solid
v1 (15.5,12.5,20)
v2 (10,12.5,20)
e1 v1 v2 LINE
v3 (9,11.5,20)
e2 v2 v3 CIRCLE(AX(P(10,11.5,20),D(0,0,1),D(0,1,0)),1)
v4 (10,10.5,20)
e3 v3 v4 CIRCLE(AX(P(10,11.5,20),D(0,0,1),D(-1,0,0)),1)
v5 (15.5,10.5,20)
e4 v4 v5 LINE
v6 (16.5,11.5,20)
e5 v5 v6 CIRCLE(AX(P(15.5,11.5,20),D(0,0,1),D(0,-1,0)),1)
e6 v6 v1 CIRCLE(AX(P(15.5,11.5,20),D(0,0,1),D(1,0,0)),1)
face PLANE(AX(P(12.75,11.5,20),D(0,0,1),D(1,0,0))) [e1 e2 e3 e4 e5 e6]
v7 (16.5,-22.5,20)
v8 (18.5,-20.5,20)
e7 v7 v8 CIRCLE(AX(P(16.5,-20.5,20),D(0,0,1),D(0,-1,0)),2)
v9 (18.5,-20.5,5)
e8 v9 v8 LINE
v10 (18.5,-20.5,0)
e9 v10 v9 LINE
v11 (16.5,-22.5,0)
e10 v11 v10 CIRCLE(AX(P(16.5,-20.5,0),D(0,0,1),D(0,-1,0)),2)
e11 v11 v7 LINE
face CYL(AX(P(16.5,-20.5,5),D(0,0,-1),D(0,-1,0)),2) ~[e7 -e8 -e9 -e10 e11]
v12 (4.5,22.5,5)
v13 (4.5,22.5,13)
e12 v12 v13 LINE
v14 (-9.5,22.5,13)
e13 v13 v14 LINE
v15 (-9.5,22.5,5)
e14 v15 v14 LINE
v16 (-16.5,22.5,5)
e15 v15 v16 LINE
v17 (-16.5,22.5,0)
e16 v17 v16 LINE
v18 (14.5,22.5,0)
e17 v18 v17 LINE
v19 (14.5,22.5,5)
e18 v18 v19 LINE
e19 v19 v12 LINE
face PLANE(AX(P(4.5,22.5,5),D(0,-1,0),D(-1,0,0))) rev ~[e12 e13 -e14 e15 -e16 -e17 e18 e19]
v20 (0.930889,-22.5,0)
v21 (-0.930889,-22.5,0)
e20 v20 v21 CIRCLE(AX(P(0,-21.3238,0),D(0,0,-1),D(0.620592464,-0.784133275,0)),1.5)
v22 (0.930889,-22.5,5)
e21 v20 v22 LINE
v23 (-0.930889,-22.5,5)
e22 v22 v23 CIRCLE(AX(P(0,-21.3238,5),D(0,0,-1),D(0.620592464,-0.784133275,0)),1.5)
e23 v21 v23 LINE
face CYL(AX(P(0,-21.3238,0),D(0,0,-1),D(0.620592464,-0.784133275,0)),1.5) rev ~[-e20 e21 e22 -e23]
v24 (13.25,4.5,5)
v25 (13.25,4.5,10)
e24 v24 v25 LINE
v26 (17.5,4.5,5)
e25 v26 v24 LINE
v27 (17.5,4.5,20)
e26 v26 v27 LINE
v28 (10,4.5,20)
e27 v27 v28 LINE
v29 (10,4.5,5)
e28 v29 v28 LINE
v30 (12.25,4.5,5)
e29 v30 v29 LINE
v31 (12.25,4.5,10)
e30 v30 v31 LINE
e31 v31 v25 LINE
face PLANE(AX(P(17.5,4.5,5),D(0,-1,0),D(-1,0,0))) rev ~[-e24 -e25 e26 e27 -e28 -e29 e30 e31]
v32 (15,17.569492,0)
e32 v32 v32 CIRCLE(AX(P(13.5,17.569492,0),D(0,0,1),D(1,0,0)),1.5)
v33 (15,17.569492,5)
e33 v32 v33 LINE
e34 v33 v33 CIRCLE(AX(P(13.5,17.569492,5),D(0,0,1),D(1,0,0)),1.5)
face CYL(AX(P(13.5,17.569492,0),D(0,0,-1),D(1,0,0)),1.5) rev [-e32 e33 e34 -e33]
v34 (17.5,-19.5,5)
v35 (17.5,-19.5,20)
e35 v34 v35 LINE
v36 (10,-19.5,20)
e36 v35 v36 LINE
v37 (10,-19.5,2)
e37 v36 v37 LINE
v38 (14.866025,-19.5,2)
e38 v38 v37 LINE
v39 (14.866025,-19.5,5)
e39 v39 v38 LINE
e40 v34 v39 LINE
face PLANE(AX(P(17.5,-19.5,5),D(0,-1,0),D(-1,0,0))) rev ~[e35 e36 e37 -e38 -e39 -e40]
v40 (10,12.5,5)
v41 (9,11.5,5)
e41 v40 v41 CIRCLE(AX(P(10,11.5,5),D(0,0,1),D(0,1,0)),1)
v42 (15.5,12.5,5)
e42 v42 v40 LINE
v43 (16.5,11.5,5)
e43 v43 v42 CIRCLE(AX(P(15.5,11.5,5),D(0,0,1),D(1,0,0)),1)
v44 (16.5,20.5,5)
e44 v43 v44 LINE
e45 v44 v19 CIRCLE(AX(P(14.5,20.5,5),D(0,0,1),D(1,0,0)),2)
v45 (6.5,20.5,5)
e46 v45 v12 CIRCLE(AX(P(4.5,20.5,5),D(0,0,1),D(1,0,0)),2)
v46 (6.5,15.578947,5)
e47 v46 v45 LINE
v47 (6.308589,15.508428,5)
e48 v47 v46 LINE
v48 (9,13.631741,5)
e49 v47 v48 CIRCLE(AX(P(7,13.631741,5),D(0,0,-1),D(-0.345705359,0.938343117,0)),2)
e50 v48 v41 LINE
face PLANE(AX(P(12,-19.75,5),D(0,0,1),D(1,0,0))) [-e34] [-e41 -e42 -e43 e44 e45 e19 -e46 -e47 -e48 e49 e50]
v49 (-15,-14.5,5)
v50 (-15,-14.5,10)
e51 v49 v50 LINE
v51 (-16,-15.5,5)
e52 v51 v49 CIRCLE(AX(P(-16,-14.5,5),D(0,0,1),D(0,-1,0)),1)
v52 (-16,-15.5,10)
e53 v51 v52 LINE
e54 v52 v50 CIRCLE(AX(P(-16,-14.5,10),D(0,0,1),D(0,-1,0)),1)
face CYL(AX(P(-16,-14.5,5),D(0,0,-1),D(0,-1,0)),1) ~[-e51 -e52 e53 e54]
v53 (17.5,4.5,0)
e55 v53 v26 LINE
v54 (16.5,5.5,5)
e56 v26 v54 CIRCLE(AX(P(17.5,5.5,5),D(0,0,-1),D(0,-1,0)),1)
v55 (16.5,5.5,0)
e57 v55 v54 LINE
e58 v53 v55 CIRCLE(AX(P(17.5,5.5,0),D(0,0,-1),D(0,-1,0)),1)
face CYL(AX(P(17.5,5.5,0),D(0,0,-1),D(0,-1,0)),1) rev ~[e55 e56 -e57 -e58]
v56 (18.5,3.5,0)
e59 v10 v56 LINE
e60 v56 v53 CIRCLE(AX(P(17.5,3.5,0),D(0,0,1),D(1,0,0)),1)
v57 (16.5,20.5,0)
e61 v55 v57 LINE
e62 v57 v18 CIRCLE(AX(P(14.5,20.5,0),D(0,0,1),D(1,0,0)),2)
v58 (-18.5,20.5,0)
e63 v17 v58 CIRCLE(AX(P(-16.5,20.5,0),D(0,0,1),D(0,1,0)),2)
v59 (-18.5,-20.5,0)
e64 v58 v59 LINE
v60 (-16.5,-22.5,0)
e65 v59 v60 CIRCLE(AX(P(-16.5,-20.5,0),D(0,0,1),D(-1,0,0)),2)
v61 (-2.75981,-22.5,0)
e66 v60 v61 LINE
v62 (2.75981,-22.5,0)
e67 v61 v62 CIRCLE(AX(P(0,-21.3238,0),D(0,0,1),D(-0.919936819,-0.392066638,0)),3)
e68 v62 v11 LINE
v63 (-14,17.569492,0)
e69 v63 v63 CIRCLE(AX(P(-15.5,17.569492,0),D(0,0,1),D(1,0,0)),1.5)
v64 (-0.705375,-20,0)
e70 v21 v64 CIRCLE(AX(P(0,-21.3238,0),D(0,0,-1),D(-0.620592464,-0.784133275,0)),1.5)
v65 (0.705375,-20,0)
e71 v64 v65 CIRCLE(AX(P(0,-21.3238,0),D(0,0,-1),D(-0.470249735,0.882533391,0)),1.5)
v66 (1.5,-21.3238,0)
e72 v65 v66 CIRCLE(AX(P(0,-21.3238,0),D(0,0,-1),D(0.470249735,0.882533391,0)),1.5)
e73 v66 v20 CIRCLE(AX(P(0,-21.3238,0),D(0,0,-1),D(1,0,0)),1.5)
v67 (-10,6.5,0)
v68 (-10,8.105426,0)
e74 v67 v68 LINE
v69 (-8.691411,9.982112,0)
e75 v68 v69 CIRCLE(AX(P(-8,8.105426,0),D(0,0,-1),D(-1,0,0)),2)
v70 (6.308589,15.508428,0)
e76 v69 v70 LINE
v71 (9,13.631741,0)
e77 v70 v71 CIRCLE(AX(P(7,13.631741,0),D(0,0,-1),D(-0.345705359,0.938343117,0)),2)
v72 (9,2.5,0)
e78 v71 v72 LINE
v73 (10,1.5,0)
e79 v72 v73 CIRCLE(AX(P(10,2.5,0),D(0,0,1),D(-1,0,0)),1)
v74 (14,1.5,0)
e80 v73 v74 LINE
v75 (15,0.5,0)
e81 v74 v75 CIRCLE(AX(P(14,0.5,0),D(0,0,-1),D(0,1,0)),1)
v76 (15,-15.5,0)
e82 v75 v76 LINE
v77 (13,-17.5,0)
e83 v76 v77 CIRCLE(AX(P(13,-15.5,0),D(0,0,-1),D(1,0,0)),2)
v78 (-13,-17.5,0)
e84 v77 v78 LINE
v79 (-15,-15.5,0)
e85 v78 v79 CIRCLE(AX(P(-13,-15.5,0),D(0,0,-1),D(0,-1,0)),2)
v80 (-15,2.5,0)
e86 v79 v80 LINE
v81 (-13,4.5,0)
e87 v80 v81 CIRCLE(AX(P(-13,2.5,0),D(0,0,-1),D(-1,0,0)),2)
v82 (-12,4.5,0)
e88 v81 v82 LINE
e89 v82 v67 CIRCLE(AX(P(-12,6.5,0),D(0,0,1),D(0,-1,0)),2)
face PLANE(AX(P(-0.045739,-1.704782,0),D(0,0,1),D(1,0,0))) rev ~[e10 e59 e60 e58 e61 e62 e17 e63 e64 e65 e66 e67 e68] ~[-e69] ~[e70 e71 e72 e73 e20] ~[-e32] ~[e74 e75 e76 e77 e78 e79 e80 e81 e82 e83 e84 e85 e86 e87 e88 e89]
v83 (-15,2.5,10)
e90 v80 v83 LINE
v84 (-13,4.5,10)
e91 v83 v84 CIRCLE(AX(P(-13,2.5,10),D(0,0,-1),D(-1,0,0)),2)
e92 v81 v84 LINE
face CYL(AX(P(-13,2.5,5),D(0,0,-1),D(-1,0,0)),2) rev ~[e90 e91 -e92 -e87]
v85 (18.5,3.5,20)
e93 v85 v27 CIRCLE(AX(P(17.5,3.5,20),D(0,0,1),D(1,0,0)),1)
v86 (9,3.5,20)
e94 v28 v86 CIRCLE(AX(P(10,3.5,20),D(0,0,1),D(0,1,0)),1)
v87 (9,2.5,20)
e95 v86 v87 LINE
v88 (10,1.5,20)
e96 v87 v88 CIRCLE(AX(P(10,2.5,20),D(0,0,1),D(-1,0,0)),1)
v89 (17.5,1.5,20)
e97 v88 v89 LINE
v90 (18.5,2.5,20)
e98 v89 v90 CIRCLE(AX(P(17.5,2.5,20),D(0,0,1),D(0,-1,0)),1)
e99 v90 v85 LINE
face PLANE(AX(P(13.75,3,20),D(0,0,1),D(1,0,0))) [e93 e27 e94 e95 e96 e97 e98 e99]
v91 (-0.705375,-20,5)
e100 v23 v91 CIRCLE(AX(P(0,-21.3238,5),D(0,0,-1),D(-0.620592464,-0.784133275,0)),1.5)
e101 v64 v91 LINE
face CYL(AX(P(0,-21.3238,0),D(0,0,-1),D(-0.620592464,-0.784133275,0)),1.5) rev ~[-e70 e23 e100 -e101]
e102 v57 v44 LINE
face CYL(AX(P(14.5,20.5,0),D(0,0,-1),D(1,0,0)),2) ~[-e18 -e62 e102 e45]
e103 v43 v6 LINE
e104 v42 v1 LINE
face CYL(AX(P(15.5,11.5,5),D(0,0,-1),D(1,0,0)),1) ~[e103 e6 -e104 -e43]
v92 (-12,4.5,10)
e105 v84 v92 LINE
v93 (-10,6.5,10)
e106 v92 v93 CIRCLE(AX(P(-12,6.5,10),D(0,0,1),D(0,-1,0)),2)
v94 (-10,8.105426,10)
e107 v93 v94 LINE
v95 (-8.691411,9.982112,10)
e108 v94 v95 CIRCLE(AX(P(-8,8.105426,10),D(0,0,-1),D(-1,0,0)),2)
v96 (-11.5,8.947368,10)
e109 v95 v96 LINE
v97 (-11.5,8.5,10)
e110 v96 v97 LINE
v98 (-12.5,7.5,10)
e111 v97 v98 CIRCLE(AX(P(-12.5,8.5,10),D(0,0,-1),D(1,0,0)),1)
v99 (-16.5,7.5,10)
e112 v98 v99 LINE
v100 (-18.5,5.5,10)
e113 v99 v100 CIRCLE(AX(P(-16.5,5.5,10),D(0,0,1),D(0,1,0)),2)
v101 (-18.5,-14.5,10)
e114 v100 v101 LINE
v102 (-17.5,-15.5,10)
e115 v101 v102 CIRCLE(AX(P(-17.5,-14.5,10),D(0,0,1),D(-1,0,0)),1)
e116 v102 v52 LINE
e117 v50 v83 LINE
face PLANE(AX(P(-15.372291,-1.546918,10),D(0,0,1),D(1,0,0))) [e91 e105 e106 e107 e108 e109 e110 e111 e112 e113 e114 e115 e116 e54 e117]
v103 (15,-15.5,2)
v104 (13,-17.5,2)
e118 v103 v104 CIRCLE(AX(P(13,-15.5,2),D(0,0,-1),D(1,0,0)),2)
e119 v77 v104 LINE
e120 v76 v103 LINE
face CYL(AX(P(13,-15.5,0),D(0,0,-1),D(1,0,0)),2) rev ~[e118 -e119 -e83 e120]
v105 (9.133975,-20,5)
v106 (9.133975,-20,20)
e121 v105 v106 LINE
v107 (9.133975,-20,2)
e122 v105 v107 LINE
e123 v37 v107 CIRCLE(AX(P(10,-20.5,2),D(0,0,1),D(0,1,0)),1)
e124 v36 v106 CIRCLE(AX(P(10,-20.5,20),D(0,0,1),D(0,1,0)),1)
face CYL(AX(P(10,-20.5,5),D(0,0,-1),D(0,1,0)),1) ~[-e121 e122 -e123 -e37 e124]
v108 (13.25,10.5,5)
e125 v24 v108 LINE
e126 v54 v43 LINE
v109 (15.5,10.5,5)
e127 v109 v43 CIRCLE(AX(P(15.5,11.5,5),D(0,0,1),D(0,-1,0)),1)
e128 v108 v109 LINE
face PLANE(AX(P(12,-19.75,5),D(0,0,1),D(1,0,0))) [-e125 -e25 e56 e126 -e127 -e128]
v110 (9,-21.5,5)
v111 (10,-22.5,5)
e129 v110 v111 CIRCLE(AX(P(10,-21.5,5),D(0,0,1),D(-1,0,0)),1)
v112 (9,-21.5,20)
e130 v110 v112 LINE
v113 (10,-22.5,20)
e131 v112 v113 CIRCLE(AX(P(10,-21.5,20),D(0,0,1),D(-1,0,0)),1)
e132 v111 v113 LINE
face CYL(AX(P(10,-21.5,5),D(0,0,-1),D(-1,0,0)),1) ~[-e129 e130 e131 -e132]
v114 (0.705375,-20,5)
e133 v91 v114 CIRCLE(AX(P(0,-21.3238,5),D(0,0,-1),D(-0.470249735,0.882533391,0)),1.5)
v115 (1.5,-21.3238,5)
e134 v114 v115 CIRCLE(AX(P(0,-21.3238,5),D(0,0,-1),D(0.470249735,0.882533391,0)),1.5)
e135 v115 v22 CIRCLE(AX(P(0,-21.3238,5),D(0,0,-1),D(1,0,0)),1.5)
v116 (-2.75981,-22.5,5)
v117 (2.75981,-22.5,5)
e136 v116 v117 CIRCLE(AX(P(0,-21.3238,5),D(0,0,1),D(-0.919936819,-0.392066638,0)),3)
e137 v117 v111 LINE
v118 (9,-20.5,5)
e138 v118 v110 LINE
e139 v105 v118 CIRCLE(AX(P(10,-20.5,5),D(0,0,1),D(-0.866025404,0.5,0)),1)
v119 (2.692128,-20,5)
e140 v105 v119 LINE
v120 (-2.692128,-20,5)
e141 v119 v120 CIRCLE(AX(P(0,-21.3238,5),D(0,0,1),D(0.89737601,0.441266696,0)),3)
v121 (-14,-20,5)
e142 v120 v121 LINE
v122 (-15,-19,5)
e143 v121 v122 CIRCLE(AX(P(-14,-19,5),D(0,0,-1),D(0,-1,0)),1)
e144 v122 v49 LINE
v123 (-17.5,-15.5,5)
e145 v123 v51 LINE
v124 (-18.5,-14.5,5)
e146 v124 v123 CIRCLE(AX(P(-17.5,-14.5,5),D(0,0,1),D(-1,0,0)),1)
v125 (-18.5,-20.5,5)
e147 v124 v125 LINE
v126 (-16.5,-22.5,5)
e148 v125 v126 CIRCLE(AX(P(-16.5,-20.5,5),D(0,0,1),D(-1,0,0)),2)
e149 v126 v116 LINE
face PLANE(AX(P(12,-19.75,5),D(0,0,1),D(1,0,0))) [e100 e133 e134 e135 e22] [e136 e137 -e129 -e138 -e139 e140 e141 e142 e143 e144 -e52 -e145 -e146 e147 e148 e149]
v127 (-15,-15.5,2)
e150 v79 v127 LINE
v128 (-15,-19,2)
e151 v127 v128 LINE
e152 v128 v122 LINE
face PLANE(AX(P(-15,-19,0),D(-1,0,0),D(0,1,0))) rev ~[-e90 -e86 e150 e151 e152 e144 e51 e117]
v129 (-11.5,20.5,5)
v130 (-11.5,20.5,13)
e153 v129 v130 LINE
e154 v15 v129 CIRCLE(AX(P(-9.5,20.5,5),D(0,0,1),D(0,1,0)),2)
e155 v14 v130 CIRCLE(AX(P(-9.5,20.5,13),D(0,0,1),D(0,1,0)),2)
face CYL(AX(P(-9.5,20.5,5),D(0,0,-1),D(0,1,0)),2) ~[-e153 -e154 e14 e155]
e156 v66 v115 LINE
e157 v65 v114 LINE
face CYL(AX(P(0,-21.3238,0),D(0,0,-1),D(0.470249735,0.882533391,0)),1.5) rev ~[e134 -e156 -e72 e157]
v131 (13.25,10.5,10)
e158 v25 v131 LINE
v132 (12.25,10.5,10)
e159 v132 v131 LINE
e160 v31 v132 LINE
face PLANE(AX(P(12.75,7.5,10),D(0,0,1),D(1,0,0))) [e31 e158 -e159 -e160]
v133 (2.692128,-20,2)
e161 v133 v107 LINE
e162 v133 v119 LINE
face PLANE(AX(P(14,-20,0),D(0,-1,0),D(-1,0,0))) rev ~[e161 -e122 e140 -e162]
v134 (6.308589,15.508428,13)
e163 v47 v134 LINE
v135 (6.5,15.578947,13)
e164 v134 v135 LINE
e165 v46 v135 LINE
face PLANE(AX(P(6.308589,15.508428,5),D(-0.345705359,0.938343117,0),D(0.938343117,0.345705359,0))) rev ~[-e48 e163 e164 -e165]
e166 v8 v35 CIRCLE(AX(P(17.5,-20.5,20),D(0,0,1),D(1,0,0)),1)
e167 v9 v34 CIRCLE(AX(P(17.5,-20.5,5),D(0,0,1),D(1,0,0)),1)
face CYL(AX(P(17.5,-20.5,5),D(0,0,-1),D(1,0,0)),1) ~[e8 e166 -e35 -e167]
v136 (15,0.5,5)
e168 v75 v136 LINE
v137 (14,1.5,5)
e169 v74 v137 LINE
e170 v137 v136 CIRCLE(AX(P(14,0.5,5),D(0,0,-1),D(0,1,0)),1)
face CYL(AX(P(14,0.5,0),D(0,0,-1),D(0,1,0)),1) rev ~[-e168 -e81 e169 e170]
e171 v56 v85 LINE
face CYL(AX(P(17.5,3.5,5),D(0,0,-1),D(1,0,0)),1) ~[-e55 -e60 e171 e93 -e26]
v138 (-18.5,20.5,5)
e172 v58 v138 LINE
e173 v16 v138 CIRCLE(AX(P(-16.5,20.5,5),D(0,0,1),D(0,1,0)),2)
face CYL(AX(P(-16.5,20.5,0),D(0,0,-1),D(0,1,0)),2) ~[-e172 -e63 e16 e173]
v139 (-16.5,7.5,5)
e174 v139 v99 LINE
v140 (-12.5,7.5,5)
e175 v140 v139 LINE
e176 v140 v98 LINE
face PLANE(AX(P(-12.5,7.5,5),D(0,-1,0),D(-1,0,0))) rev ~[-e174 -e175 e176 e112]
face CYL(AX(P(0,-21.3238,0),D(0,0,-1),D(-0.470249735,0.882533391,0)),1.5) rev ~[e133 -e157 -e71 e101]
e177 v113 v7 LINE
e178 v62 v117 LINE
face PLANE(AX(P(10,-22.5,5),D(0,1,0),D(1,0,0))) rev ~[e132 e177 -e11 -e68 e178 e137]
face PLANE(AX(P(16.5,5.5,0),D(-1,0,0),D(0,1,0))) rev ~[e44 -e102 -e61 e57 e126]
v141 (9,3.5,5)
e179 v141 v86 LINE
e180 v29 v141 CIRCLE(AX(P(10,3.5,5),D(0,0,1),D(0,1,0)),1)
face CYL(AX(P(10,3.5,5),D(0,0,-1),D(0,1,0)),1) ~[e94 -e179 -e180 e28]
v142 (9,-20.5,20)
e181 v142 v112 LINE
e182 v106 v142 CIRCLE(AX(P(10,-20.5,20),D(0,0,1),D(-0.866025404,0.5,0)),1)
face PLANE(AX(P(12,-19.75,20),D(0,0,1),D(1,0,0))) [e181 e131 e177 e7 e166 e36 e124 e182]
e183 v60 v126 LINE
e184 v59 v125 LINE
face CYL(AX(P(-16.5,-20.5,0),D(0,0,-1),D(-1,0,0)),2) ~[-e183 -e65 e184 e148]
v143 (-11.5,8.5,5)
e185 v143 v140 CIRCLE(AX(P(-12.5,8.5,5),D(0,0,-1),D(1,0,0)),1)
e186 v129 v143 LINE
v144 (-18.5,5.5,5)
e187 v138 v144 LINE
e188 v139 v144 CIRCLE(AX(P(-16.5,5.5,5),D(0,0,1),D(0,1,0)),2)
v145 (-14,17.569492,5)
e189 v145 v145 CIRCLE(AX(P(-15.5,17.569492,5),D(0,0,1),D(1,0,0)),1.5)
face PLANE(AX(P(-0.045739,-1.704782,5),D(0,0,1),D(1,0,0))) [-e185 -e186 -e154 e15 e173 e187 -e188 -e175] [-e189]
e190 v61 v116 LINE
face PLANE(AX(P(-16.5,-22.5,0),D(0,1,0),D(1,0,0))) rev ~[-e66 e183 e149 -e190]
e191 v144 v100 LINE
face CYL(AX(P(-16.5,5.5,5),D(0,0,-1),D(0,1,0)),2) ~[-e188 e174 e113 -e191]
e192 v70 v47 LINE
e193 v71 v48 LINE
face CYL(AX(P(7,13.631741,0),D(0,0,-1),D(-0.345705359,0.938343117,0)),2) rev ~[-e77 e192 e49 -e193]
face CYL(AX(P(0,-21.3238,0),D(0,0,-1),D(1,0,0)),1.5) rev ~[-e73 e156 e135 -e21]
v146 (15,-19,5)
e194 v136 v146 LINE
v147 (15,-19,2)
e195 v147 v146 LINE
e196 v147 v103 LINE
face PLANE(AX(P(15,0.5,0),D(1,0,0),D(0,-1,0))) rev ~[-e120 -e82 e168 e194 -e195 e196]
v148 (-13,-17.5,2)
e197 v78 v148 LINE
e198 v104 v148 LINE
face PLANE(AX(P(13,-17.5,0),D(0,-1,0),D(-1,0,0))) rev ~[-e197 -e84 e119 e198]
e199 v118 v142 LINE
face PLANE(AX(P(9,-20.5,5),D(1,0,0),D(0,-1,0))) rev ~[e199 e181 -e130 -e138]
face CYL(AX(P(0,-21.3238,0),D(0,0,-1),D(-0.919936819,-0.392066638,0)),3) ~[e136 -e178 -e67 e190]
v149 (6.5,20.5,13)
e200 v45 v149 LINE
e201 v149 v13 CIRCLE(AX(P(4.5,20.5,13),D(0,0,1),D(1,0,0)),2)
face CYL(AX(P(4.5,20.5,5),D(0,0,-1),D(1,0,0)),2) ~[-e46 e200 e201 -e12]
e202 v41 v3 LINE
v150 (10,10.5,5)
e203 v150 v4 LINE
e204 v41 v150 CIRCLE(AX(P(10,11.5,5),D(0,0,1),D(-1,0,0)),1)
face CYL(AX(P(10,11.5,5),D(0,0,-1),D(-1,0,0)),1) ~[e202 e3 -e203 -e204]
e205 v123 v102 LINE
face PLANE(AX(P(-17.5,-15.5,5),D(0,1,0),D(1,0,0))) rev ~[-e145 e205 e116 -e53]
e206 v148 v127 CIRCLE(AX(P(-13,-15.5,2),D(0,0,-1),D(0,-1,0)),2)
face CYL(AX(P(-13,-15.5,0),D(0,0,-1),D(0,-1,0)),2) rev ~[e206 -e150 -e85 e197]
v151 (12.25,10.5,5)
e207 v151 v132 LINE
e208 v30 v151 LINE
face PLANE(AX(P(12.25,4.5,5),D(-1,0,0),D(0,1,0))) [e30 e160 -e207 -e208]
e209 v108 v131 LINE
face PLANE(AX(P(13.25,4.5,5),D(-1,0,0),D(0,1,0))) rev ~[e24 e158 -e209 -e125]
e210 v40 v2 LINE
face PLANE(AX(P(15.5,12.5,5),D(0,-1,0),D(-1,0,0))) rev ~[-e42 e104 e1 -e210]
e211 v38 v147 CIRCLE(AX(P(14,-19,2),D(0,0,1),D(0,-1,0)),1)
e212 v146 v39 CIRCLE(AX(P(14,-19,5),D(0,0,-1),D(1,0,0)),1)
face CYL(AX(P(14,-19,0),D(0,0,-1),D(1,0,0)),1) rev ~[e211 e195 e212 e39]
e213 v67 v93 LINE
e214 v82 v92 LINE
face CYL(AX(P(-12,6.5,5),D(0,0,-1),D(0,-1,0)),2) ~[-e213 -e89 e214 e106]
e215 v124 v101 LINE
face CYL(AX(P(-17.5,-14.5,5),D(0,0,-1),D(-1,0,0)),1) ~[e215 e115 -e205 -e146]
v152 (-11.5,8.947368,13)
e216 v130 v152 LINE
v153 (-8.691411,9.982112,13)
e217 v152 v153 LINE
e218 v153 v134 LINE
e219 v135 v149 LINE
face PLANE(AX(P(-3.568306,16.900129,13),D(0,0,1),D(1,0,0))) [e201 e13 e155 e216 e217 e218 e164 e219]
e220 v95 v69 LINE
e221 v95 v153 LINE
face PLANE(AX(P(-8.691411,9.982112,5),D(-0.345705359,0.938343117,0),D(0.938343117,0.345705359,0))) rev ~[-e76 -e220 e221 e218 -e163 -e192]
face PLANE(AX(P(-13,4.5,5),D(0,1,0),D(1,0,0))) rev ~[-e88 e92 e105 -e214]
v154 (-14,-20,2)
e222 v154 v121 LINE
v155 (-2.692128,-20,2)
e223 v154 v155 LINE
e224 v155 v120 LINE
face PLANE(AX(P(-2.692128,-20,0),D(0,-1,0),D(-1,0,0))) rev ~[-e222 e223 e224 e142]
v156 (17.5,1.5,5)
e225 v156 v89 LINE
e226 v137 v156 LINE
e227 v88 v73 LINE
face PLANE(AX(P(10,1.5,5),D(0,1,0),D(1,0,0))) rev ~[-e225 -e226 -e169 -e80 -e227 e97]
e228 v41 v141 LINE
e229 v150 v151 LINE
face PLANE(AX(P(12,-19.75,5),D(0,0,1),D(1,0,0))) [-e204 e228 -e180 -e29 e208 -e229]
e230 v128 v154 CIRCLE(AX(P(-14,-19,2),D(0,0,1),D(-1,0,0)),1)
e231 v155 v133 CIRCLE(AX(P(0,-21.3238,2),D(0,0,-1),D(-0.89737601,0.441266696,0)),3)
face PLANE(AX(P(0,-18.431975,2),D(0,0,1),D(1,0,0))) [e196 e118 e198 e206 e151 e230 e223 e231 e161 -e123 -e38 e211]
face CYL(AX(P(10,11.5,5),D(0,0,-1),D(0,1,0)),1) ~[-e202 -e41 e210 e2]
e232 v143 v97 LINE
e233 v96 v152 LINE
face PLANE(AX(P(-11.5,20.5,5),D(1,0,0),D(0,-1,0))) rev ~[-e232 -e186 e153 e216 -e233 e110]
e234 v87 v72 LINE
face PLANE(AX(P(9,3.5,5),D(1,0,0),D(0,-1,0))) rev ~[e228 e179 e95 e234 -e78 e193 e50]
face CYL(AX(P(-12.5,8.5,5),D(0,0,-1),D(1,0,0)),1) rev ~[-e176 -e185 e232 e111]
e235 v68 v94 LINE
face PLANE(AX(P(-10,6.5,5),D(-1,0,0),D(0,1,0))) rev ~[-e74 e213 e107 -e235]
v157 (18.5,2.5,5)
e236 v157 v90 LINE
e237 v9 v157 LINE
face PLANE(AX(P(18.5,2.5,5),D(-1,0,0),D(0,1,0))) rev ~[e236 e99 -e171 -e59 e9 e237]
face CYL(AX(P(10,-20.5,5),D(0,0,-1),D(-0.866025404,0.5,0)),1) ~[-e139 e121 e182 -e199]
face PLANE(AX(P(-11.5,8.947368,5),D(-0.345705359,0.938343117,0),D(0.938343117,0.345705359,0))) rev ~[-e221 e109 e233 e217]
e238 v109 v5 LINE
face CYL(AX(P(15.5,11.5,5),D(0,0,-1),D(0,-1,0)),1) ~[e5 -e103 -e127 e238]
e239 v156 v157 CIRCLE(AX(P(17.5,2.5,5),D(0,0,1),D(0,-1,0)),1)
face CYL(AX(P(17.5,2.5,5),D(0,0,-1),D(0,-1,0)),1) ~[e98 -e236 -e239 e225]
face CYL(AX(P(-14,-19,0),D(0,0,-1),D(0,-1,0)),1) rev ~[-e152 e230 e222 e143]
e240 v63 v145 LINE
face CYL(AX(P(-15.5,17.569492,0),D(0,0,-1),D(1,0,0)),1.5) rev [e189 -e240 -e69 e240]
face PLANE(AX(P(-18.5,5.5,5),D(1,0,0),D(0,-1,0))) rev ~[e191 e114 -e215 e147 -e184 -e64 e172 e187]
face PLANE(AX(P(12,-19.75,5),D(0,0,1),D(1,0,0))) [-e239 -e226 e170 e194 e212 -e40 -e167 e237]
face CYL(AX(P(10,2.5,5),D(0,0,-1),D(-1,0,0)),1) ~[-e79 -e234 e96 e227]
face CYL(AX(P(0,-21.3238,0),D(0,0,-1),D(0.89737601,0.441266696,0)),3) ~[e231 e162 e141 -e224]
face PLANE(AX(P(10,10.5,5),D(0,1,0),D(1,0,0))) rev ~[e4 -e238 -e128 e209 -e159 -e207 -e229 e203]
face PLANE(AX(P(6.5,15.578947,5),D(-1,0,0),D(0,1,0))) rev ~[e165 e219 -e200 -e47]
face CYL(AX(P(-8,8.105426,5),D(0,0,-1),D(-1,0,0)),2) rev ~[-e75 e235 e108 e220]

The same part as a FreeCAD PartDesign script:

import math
import FreeCAD as App
import Part
import Sketcher

doc = App.newDocument("Part")
body = doc.addObject("PartDesign::Body", "Body")

# Sketch on XY plane
sketch1 = doc.addObject("Sketcher::SketchObject", "Sketch")
body.addObject(sketch1)
sketch1.AttachmentSupport = (doc.XY_Plane, [""])
sketch1.MapMode = "FlatFace"
sketch1.addGeometry([
    Part.LineSegment(App.Vector(-14, -20, 0), App.Vector(-2.7, -20, 0)),  # 0
    Part.ArcOfCircle(Part.Circle(App.Vector(0, -21.3, 0), App.Vector(0, 0, 1), 3), math.radians(26), math.radians(154)),  # 1
    Part.LineSegment(App.Vector(2.7, -20, 0), App.Vector(14, -20, 0)),  # 2
    Part.ArcOfCircle(Part.Circle(App.Vector(14, -19, 0), App.Vector(0, 0, 1), 1), math.radians(-90), math.radians(0)),  # 3
    Part.LineSegment(App.Vector(15, -19, 0), App.Vector(15, -15.5, 0)),  # 4
    Part.ArcOfCircle(Part.Circle(App.Vector(13, -15.5, 0), App.Vector(0, 0, 1), 2), math.radians(-90), math.radians(0)),  # 5
    Part.LineSegment(App.Vector(13, -17.5, 0), App.Vector(-13, -17.5, 0)),  # 6
    Part.ArcOfCircle(Part.Circle(App.Vector(-13, -15.5, 0), App.Vector(0, 0, 1), 2), math.radians(180), math.radians(270)),  # 7
    Part.LineSegment(App.Vector(-15, -15.5, 0), App.Vector(-15, -19, 0)),  # 8
    Part.ArcOfCircle(Part.Circle(App.Vector(-14, -19, 0), App.Vector(0, 0, 1), 1), math.radians(180), math.radians(270)),  # 9
], False)
sketch1.addConstraint([
    Sketcher.Constraint("Coincident", 0, 2, 1, 2),
    Sketcher.Constraint("Coincident", 1, 1, 2, 1),
    Sketcher.Constraint("Tangent", 2, 2, 3, 1),
    Sketcher.Constraint("Tangent", 3, 2, 4, 1),
    Sketcher.Constraint("Tangent", 4, 2, 5, 2),
    Sketcher.Constraint("Tangent", 5, 1, 6, 1),
    Sketcher.Constraint("Tangent", 6, 2, 7, 2),
    Sketcher.Constraint("Tangent", 7, 1, 8, 1),
    Sketcher.Constraint("Tangent", 8, 2, 9, 1),
    Sketcher.Constraint("Tangent", 9, 2, 0, 1),
    Sketcher.Constraint("Horizontal", 0),
    Sketcher.Constraint("Horizontal", 2),
    Sketcher.Constraint("Vertical", 4),
    Sketcher.Constraint("Horizontal", 6),
    Sketcher.Constraint("Vertical", 8),
    Sketcher.Constraint("Equal", 5, 7),
    Sketcher.Constraint("Equal", 3, 9),
    Sketcher.Constraint("Symmetric", 3, 3, 9, 3, -2),
    Sketcher.Constraint("PointOnObject", 1, 3, -2),
    Sketcher.Constraint("Radius", 1, 3.0),
    Sketcher.Constraint("Radius", 3, 1.0),
    Sketcher.Constraint("Radius", 5, 2.0),
    Sketcher.Constraint("DistanceX", 6, 2, 6, 1, 26.0),
    Sketcher.Constraint("DistanceY", 4, 1, 4, 2, 3.5),
    Sketcher.Constraint("DistanceY", 3, 3, -1, 1, 19.0),
    Sketcher.Constraint("DistanceX", 0, 1, 0, 2, 11.307872),
])
pad1 = doc.addObject("PartDesign::Pad", "Pad")
body.addObject(pad1)
pad1.Profile = sketch1
pad1.Length = 2

# Sketch on XY plane
sketch2 = doc.addObject("Sketcher::SketchObject", "Sketch001")
body.addObject(sketch2)
sketch2.AttachmentSupport = (doc.XY_Plane, [""])
sketch2.MapMode = "FlatFace"
sketch2.addGeometry([
    Part.ArcOfCircle(Part.Circle(App.Vector(17.5, 5.5, 0), App.Vector(0, 0, 1), 1), math.radians(180), math.radians(270)),  # 0
    Part.LineSegment(App.Vector(16.5, 5.5, 0), App.Vector(16.5, 20.5, 0)),  # 1
    Part.ArcOfCircle(Part.Circle(App.Vector(14.5, 20.5, 0), App.Vector(0, 0, 1), 2), math.radians(0), math.radians(90)),  # 2
    Part.LineSegment(App.Vector(14.5, 22.5, 0), App.Vector(-16.5, 22.5, 0)),  # 3
    Part.ArcOfCircle(Part.Circle(App.Vector(-16.5, 20.5, 0), App.Vector(0, 0, 1), 2), math.radians(90), math.radians(180)),  # 4
    Part.LineSegment(App.Vector(-18.5, 20.5, 0), App.Vector(-18.5, -20.5, 0)),  # 5
    Part.ArcOfCircle(Part.Circle(App.Vector(-16.5, -20.5, 0), App.Vector(0, 0, 1), 2), math.radians(180), math.radians(270)),  # 6
    Part.LineSegment(App.Vector(-16.5, -22.5, 0), App.Vector(-2.8, -22.5, 0)),  # 7
    Part.ArcOfCircle(Part.Circle(App.Vector(0, -21.3, 0), App.Vector(0, 0, 1), 3), math.radians(-157), math.radians(-23)),  # 8
    Part.LineSegment(App.Vector(2.8, -22.5, 0), App.Vector(16.5, -22.5, 0)),  # 9
    Part.ArcOfCircle(Part.Circle(App.Vector(16.5, -20.5, 0), App.Vector(0, 0, 1), 2), math.radians(-90), math.radians(0)),  # 10
    Part.LineSegment(App.Vector(18.5, -20.5, 0), App.Vector(18.5, 3.5, 0)),  # 11
    Part.ArcOfCircle(Part.Circle(App.Vector(17.5, 3.5, 0), App.Vector(0, 0, 1), 1), math.radians(0), math.radians(90)),  # 12
    Part.ArcOfCircle(Part.Circle(App.Vector(0, -21.3, 0), App.Vector(0, 0, 1), 1.5), math.radians(-52), math.radians(0)),  # 13
    Part.ArcOfCircle(Part.Circle(App.Vector(0, -21.3, 0), App.Vector(0, 0, 1), 1.5), math.radians(-128), math.radians(-52)),  # 14
    Part.ArcOfCircle(Part.Circle(App.Vector(0, -21.3, 0), App.Vector(0, 0, 1), 1.5), math.radians(118), math.radians(232)),  # 15
    Part.ArcOfCircle(Part.Circle(App.Vector(0, -21.3, 0), App.Vector(0, 0, 1), 1.5), math.radians(62), math.radians(118)),  # 16
    Part.ArcOfCircle(Part.Circle(App.Vector(0, -21.3, 0), App.Vector(0, 0, 1), 1.5), math.radians(0), math.radians(62)),  # 17
    Part.LineSegment(App.Vector(14, -20, 0), App.Vector(2.7, -20, 0)),  # 18
    Part.ArcOfCircle(Part.Circle(App.Vector(0, -21.3, 0), App.Vector(0, 0, 1), 3), math.radians(26), math.radians(154)),  # 19
    Part.LineSegment(App.Vector(-2.7, -20, 0), App.Vector(-14, -20, 0)),  # 20
    Part.ArcOfCircle(Part.Circle(App.Vector(-14, -19, 0), App.Vector(0, 0, 1), 1), math.radians(180), math.radians(270)),  # 21
    Part.LineSegment(App.Vector(-15, -19, 0), App.Vector(-15, 2.5, 0)),  # 22
    Part.ArcOfCircle(Part.Circle(App.Vector(-13, 2.5, 0), App.Vector(0, 0, 1), 2), math.radians(90), math.radians(180)),  # 23
    Part.LineSegment(App.Vector(-13, 4.5, 0), App.Vector(-12, 4.5, 0)),  # 24
    Part.ArcOfCircle(Part.Circle(App.Vector(-12, 6.5, 0), App.Vector(0, 0, 1), 2), math.radians(-90), math.radians(0)),  # 25
    Part.LineSegment(App.Vector(-10, 6.5, 0), App.Vector(-10, 8.1, 0)),  # 26
    Part.ArcOfCircle(Part.Circle(App.Vector(-8, 8.1, 0), App.Vector(0, 0, 1), 2), math.radians(110), math.radians(180)),  # 27
    Part.LineSegment(App.Vector(-8.7, 10, 0), App.Vector(6.3, 15.5, 0)),  # 28
    Part.ArcOfCircle(Part.Circle(App.Vector(7, 13.6, 0), App.Vector(0, 0, 1), 2), math.radians(0), math.radians(110)),  # 29
    Part.LineSegment(App.Vector(9, 13.6, 0), App.Vector(9, 2.5, 0)),  # 30
    Part.ArcOfCircle(Part.Circle(App.Vector(10, 2.5, 0), App.Vector(0, 0, 1), 1), math.radians(180), math.radians(270)),  # 31
    Part.LineSegment(App.Vector(10, 1.5, 0), App.Vector(14, 1.5, 0)),  # 32
    Part.ArcOfCircle(Part.Circle(App.Vector(14, 0.5, 0), App.Vector(0, 0, 1), 1), math.radians(0), math.radians(90)),  # 33
    Part.LineSegment(App.Vector(15, 0.5, 0), App.Vector(15, -19, 0)),  # 34
    Part.ArcOfCircle(Part.Circle(App.Vector(14, -19, 0), App.Vector(0, 0, 1), 1), math.radians(-90), math.radians(0)),  # 35
    Part.Circle(App.Vector(-15.5, 17.6, 0), App.Vector(0, 0, 1), 1.5),  # 36
    Part.Circle(App.Vector(13.5, 17.6, 0), App.Vector(0, 0, 1), 1.5),  # 37
], False)
sketch2.addConstraint([
    Sketcher.Constraint("Tangent", 0, 1, 1, 1),
    Sketcher.Constraint("Tangent", 1, 2, 2, 1),
    Sketcher.Constraint("Tangent", 2, 2, 3, 1),
    Sketcher.Constraint("Tangent", 3, 2, 4, 1),
    Sketcher.Constraint("Tangent", 4, 2, 5, 1),
    Sketcher.Constraint("Tangent", 5, 2, 6, 1),
    Sketcher.Constraint("Tangent", 6, 2, 7, 1),
    Sketcher.Constraint("Coincident", 7, 2, 8, 1),
    Sketcher.Constraint("Coincident", 8, 2, 9, 1),
    Sketcher.Constraint("Tangent", 9, 2, 10, 1),
    Sketcher.Constraint("Tangent", 10, 2, 11, 1),
    Sketcher.Constraint("Tangent", 11, 2, 12, 1),
    Sketcher.Constraint("Tangent", 12, 2, 0, 2),
    Sketcher.Constraint("Tangent", 13, 1, 14, 2),
    Sketcher.Constraint("Tangent", 14, 1, 15, 2),
    Sketcher.Constraint("Tangent", 15, 1, 16, 2),
    Sketcher.Constraint("Tangent", 16, 1, 17, 2),
    Sketcher.Constraint("Tangent", 17, 1, 13, 2),
    Sketcher.Constraint("Coincident", 18, 2, 19, 1),
    Sketcher.Constraint("Coincident", 19, 2, 20, 1),
    Sketcher.Constraint("Tangent", 20, 2, 21, 2),
    Sketcher.Constraint("Tangent", 21, 1, 22, 1),
    Sketcher.Constraint("Tangent", 22, 2, 23, 2),
    Sketcher.Constraint("Tangent", 23, 1, 24, 1),
    Sketcher.Constraint("Tangent", 24, 2, 25, 1),
    Sketcher.Constraint("Tangent", 25, 2, 26, 1),
    Sketcher.Constraint("Tangent", 26, 2, 27, 2),
    Sketcher.Constraint("Tangent", 27, 1, 28, 1),
    Sketcher.Constraint("Tangent", 28, 2, 29, 2),
    Sketcher.Constraint("Tangent", 29, 1, 30, 1),
    Sketcher.Constraint("Tangent", 30, 2, 31, 1),
    Sketcher.Constraint("Tangent", 31, 2, 32, 1),
    Sketcher.Constraint("Tangent", 32, 2, 33, 2),
    Sketcher.Constraint("Tangent", 33, 1, 34, 1),
    Sketcher.Constraint("Tangent", 34, 2, 35, 2),
    Sketcher.Constraint("Tangent", 35, 1, 18, 1),
    Sketcher.Constraint("Vertical", 1),
    Sketcher.Constraint("Horizontal", 3),
    Sketcher.Constraint("Vertical", 5),
    Sketcher.Constraint("Horizontal", 7),
    Sketcher.Constraint("Horizontal", 9),
    Sketcher.Constraint("Vertical", 11),
    Sketcher.Constraint("Horizontal", 18),
    Sketcher.Constraint("Horizontal", 20),
    Sketcher.Constraint("Vertical", 22),
    Sketcher.Constraint("Horizontal", 24),
    Sketcher.Constraint("Vertical", 26),
    Sketcher.Constraint("Vertical", 30),
    Sketcher.Constraint("Horizontal", 32),
    Sketcher.Constraint("Vertical", 34),
    Sketcher.Constraint("Coincident", 13, 3, 8, 3),
    Sketcher.Constraint("Coincident", 15, 3, 8, 3),
    Sketcher.Constraint("Coincident", 19, 3, 8, 3),
    Sketcher.Constraint("Equal", 2, 4),
    Sketcher.Constraint("Equal", 4, 6),
    Sketcher.Constraint("Equal", 6, 10),
    Sketcher.Constraint("Equal", 0, 12),
    Sketcher.Constraint("Equal", 8, 19),
    Sketcher.Constraint("Equal", 12, 21),
    Sketcher.Constraint("Equal", 10, 23),
    Sketcher.Constraint("Equal", 23, 25),
    Sketcher.Constraint("Equal", 25, 27),
    Sketcher.Constraint("Equal", 27, 29),
    Sketcher.Constraint("Equal", 21, 31),
    Sketcher.Constraint("Equal", 31, 33),
    Sketcher.Constraint("Equal", 33, 35),
    Sketcher.Constraint("Equal", 17, 36),
    Sketcher.Constraint("Equal", 36, 37),
    Sketcher.Constraint("Symmetric", 4, 3, 10, 3, -1, 1),
    Sketcher.Constraint("Symmetric", 21, 3, 35, 3, -2),
    Sketcher.Constraint("Symmetric", 7, 2, 8, 2, -2),
    Sketcher.Constraint("Horizontal", 23, 3, 31, 3),
    Sketcher.Constraint("Horizontal", 36, 3, 37, 3),
    Sketcher.Constraint("Horizontal", 9, 2, 13, 1),
    Sketcher.Constraint("Horizontal", 13, 1, 14, 1),
    Sketcher.Constraint("Horizontal", 15, 1, 16, 1),
    Sketcher.Constraint("Horizontal", 19, 3, 17, 1),
    Sketcher.Constraint("Horizontal", 16, 1, 18, 2),
    Sketcher.Constraint("Horizontal", 12, 2, 23, 1),
    Sketcher.Constraint("Vertical", 0, 3, 12, 3),
    Sketcher.Constraint("Vertical", 10, 3, 0, 1),
    Sketcher.Constraint("Diameter", 36, 3.0),
    Sketcher.Constraint("Radius", 0, 1.0),
    Sketcher.Constraint("Radius", 8, 3.0),
    Sketcher.Constraint("DistanceX", 3, 2, 3, 1, 31.0),
    Sketcher.Constraint("DistanceX", 24, 1, 24, 2, 1.0),
    Sketcher.Constraint("DistanceX", 32, 1, 32, 2, 4.0),
    Sketcher.Constraint("DistanceY", 1, 1, 1, 2, 15.0),
    Sketcher.Constraint("DistanceY", 5, 2, 5, 1, 41.0),
    Sketcher.Constraint("DistanceY", 22, 1, 22, 2, 21.5),
    Sketcher.Constraint("DistanceX", 21, 3, -1, 1, 14.0),
    Sketcher.Constraint("DistanceX", 4, 3, 36, 3, 1.0),
    Sketcher.Constraint("DistanceX", 37, 3, 2, 3, 1.0),
    Sketcher.Constraint("DistanceX", 7, 1, 7, 2, 13.74019),
    Sketcher.Constraint("DistanceY", 30, 2, 30, 1, 11.131741),
    Sketcher.Constraint("DistanceY", 26, 1, 26, 2, 1.605426),
    Sketcher.Constraint("DistanceY", -1, 1, 36, 3, 17.569492),
])
pad2 = doc.addObject("PartDesign::Pad", "Pad001")
body.addObject(pad2)
pad2.Profile = sketch2
pad2.Length = 5

# Sketch on XY plane
sketch3 = doc.addObject("Sketcher::SketchObject", "Sketch002")
body.addObject(sketch3)
sketch3.AttachmentSupport = (doc.XY_Plane, [""])
sketch3.MapMode = "FlatFace"
sketch3.AttachmentOffset = App.Placement(App.Vector(0, 0, 5), App.Rotation())
sketch3.addGeometry([
    Part.ArcOfCircle(Part.Circle(App.Vector(-17.5, -14.5, 0), App.Vector(0, 0, 1), 1), math.radians(180), math.radians(270)),  # 0
    Part.LineSegment(App.Vector(-17.5, -15.5, 0), App.Vector(-16, -15.5, 0)),  # 1
    Part.ArcOfCircle(Part.Circle(App.Vector(-16, -14.5, 0), App.Vector(0, 0, 1), 1), math.radians(-90), math.radians(0)),  # 2
    Part.LineSegment(App.Vector(-15, -14.5, 0), App.Vector(-15, 2.5, 0)),  # 3
    Part.ArcOfCircle(Part.Circle(App.Vector(-13, 2.5, 0), App.Vector(0, 0, 1), 2), math.radians(90), math.radians(180)),  # 4
    Part.LineSegment(App.Vector(-13, 4.5, 0), App.Vector(-12, 4.5, 0)),  # 5
    Part.ArcOfCircle(Part.Circle(App.Vector(-12, 6.5, 0), App.Vector(0, 0, 1), 2), math.radians(-90), math.radians(0)),  # 6
    Part.LineSegment(App.Vector(-10, 6.5, 0), App.Vector(-10, 8.11, 0)),  # 7
    Part.ArcOfCircle(Part.Circle(App.Vector(-8, 8.11, 0), App.Vector(0, 0, 1), 2), math.radians(110), math.radians(180)),  # 8
    Part.LineSegment(App.Vector(-8.69, 9.98, 0), App.Vector(-11.5, 8.95, 0)),  # 9
    Part.LineSegment(App.Vector(-11.5, 8.95, 0), App.Vector(-11.5, 8.5, 0)),  # 10
    Part.ArcOfCircle(Part.Circle(App.Vector(-12.5, 8.5, 0), App.Vector(0, 0, 1), 1), math.radians(-90), math.radians(0)),  # 11
    Part.LineSegment(App.Vector(-12.5, 7.5, 0), App.Vector(-16.5, 7.5, 0)),  # 12
    Part.ArcOfCircle(Part.Circle(App.Vector(-16.5, 5.5, 0), App.Vector(0, 0, 1), 2), math.radians(90), math.radians(180)),  # 13
    Part.LineSegment(App.Vector(-18.5, 5.5, 0), App.Vector(-18.5, -14.5, 0)),  # 14
], False)
sketch3.addConstraint([
    Sketcher.Constraint("Tangent", 0, 2, 1, 1),
    Sketcher.Constraint("Tangent", 1, 2, 2, 1),
    Sketcher.Constraint("Tangent", 2, 2, 3, 1),
    Sketcher.Constraint("Tangent", 3, 2, 4, 2),
    Sketcher.Constraint("Tangent", 4, 1, 5, 1),
    Sketcher.Constraint("Tangent", 5, 2, 6, 1),
    Sketcher.Constraint("Tangent", 6, 2, 7, 1),
    Sketcher.Constraint("Tangent", 7, 2, 8, 2),
    Sketcher.Constraint("Tangent", 8, 1, 9, 1),
    Sketcher.Constraint("Coincident", 9, 2, 10, 1),
    Sketcher.Constraint("Tangent", 10, 2, 11, 2),
    Sketcher.Constraint("Tangent", 11, 1, 12, 1),
    Sketcher.Constraint("Tangent", 12, 2, 13, 1),
    Sketcher.Constraint("Tangent", 13, 2, 14, 1),
    Sketcher.Constraint("Tangent", 14, 2, 0, 1),
    Sketcher.Constraint("Horizontal", 1),
    Sketcher.Constraint("Vertical", 3),
    Sketcher.Constraint("Horizontal", 5),
    Sketcher.Constraint("Vertical", 7),
    Sketcher.Constraint("Vertical", 10),
    Sketcher.Constraint("Horizontal", 12),
    Sketcher.Constraint("Vertical", 14),
    Sketcher.Constraint("Equal", 0, 2),
    Sketcher.Constraint("Equal", 4, 6),
    Sketcher.Constraint("Equal", 6, 8),
    Sketcher.Constraint("Equal", 2, 11),
    Sketcher.Constraint("Equal", 8, 13),
    Sketcher.Constraint("Radius", 0, 1.0),
    Sketcher.Constraint("Radius", 4, 2.0),
    Sketcher.Constraint("DistanceX", 5, 1, 5, 2, 1.0),
    Sketcher.Constraint("DistanceX", 12, 2, 12, 1, 4.0),
    Sketcher.Constraint("DistanceY", 3, 1, 3, 2, 17.0),
    Sketcher.Constraint("DistanceY", 14, 2, 14, 1, 20.0),
    Sketcher.Constraint("DistanceX", 1, 1, 1, 2, 1.5),
    Sketcher.Constraint("DistanceX", 2, 3, -1, 1, 16.0),
    Sketcher.Constraint("DistanceY", 0, 3, -1, 1, 14.5),
    Sketcher.Constraint("DistanceY", 10, 2, 10, 1, 0.447368),
    Sketcher.Constraint("DistanceY", 7, 1, 7, 2, 1.605426),
])
pad3 = doc.addObject("PartDesign::Pad", "Pad002")
body.addObject(pad3)
pad3.Profile = sketch3
pad3.Length = 5

# Sketch on XY plane
sketch4 = doc.addObject("Sketcher::SketchObject", "Sketch003")
body.addObject(sketch4)
sketch4.AttachmentSupport = (doc.XY_Plane, [""])
sketch4.MapMode = "FlatFace"
sketch4.AttachmentOffset = App.Placement(App.Vector(0, 0, 5), App.Rotation())
sketch4.addGeometry([
    Part.LineSegment(App.Vector(4.5, 22.5, 0), App.Vector(-9.5, 22.5, 0)),  # 0
    Part.ArcOfCircle(Part.Circle(App.Vector(-9.5, 20.5, 0), App.Vector(0, 0, 1), 2), math.radians(90), math.radians(180)),  # 1
    Part.LineSegment(App.Vector(-11.5, 20.5, 0), App.Vector(-11.5, 8.95, 0)),  # 2
    Part.LineSegment(App.Vector(-11.5, 8.95, 0), App.Vector(-8.69, 9.98, 0)),  # 3
    Part.LineSegment(App.Vector(-8.69, 9.98, 0), App.Vector(6.31, 15.51, 0)),  # 4
    Part.LineSegment(App.Vector(6.31, 15.51, 0), App.Vector(6.5, 15.58, 0)),  # 5
    Part.LineSegment(App.Vector(6.5, 15.58, 0), App.Vector(6.5, 20.5, 0)),  # 6
    Part.ArcOfCircle(Part.Circle(App.Vector(4.5, 20.5, 0), App.Vector(0, 0, 1), 2), math.radians(0), math.radians(90)),  # 7
], False)
sketch4.addConstraint([
    Sketcher.Constraint("Tangent", 0, 2, 1, 1),
    Sketcher.Constraint("Tangent", 1, 2, 2, 1),
    Sketcher.Constraint("Coincident", 2, 2, 3, 1),
    Sketcher.Constraint("Coincident", 3, 2, 4, 1),
    Sketcher.Constraint("Coincident", 4, 2, 5, 1),
    Sketcher.Constraint("Coincident", 5, 2, 6, 1),
    Sketcher.Constraint("Tangent", 6, 2, 7, 1),
    Sketcher.Constraint("Tangent", 7, 2, 0, 1),
    Sketcher.Constraint("Horizontal", 0),
    Sketcher.Constraint("Vertical", 2),
    Sketcher.Constraint("Vertical", 6),
    Sketcher.Constraint("Equal", 1, 7),
    Sketcher.Constraint("Parallel", 3, 4),
    Sketcher.Constraint("Parallel", 4, 5),
    Sketcher.Constraint("Radius", 1, 2.0),
    Sketcher.Constraint("DistanceX", 0, 2, 0, 1, 14.0),
    Sketcher.Constraint("DistanceX", 3, 2, 4, 2, 15.0),
    Sketcher.Constraint("DistanceX", 1, 3, -1, 1, 9.5),
    Sketcher.Constraint("DistanceY", -1, 1, 1, 3, 20.5),
    Sketcher.Constraint("DistanceY", 2, 2, 2, 1, 11.552632),
    Sketcher.Constraint("DistanceY", 6, 1, 6, 2, 4.921053),
    Sketcher.Constraint("DistanceX", 3, 2, -1, 1, 8.691411),
])
pad4 = doc.addObject("PartDesign::Pad", "Pad003")
body.addObject(pad4)
pad4.Profile = sketch4
pad4.Length = 8

# Sketch on XY plane
sketch5 = doc.addObject("Sketcher::SketchObject", "Sketch004")
body.addObject(sketch5)
sketch5.AttachmentSupport = (doc.XY_Plane, [""])
sketch5.MapMode = "FlatFace"
sketch5.AttachmentOffset = App.Placement(App.Vector(0, 0, 5), App.Rotation())
sketch5.addGeometry([
    Part.ArcOfCircle(Part.Circle(App.Vector(10, -20.5, 0), App.Vector(0, 0, 1), 1), math.radians(90), math.radians(150)),  # 0
    Part.ArcOfCircle(Part.Circle(App.Vector(10, -20.5, 0), App.Vector(0, 0, 1), 1), math.radians(150), math.radians(180)),  # 1
    Part.LineSegment(App.Vector(9, -20.5, 0), App.Vector(9, -21.5, 0)),  # 2
    Part.ArcOfCircle(Part.Circle(App.Vector(10, -21.5, 0), App.Vector(0, 0, 1), 1), math.radians(180), math.radians(270)),  # 3
    Part.LineSegment(App.Vector(10, -22.5, 0), App.Vector(16.5, -22.5, 0)),  # 4
    Part.ArcOfCircle(Part.Circle(App.Vector(16.5, -20.5, 0), App.Vector(0, 0, 1), 2), math.radians(-90), math.radians(0)),  # 5
    Part.ArcOfCircle(Part.Circle(App.Vector(17.5, -20.5, 0), App.Vector(0, 0, 1), 1), math.radians(0), math.radians(90)),  # 6
    Part.LineSegment(App.Vector(17.5, -19.5, 0), App.Vector(10, -19.5, 0)),  # 7
], False)
sketch5.addConstraint([
    Sketcher.Constraint("Tangent", 0, 2, 1, 1),
    Sketcher.Constraint("Tangent", 1, 2, 2, 1),
    Sketcher.Constraint("Tangent", 2, 2, 3, 1),
    Sketcher.Constraint("Tangent", 3, 2, 4, 1),
    Sketcher.Constraint("Tangent", 4, 2, 5, 1),
    Sketcher.Constraint("Tangent", 5, 2, 6, 1),
    Sketcher.Constraint("Tangent", 6, 2, 7, 1),
    Sketcher.Constraint("Tangent", 7, 2, 0, 1),
    Sketcher.Constraint("Vertical", 2),
    Sketcher.Constraint("Horizontal", 4),
    Sketcher.Constraint("Horizontal", 7),
    Sketcher.Constraint("Equal", 0, 1),
    Sketcher.Constraint("Equal", 1, 3),
    Sketcher.Constraint("Equal", 3, 6),
    Sketcher.Constraint("Horizontal", 1, 3, 5, 3),
    Sketcher.Constraint("Radius", 0, 1.0),
    Sketcher.Constraint("Radius", 5, 2.0),
    Sketcher.Constraint("DistanceX", 4, 1, 4, 2, 6.5),
    Sketcher.Constraint("DistanceX", -1, 1, 0, 3, 10.0),
    Sketcher.Constraint("DistanceY", 0, 2, -1, 1, 20.0),
    Sketcher.Constraint("DistanceY", 0, 3, -1, 1, 20.5),
])
pad5 = doc.addObject("PartDesign::Pad", "Pad004")
body.addObject(pad5)
pad5.Profile = sketch5
pad5.Length = 4
pad5.Reversed = True

# Sketch on XY plane
sketch6 = doc.addObject("Sketcher::SketchObject", "Sketch005")
body.addObject(sketch6)
sketch6.AttachmentSupport = (doc.XY_Plane, [""])
sketch6.MapMode = "FlatFace"
sketch6.AttachmentOffset = App.Placement(App.Vector(0, 0, 5), App.Rotation())
sketch6.addGeometry([
    Part.ArcOfCircle(Part.Circle(App.Vector(10, -20.5, 0), App.Vector(0, 0, 1), 1), math.radians(90), math.radians(150)),  # 0
    Part.ArcOfCircle(Part.Circle(App.Vector(10, -20.5, 0), App.Vector(0, 0, 1), 1), math.radians(150), math.radians(180)),  # 1
    Part.LineSegment(App.Vector(9, -20.5, 0), App.Vector(9, -21.5, 0)),  # 2
    Part.ArcOfCircle(Part.Circle(App.Vector(10, -21.5, 0), App.Vector(0, 0, 1), 1), math.radians(180), math.radians(270)),  # 3
    Part.LineSegment(App.Vector(10, -22.5, 0), App.Vector(16.5, -22.5, 0)),  # 4
    Part.ArcOfCircle(Part.Circle(App.Vector(16.5, -20.5, 0), App.Vector(0, 0, 1), 2), math.radians(-90), math.radians(0)),  # 5
    Part.ArcOfCircle(Part.Circle(App.Vector(17.5, -20.5, 0), App.Vector(0, 0, 1), 1), math.radians(0), math.radians(90)),  # 6
    Part.LineSegment(App.Vector(17.5, -19.5, 0), App.Vector(10, -19.5, 0)),  # 7
], False)
sketch6.addConstraint([
    Sketcher.Constraint("Tangent", 0, 2, 1, 1),
    Sketcher.Constraint("Tangent", 1, 2, 2, 1),
    Sketcher.Constraint("Tangent", 2, 2, 3, 1),
    Sketcher.Constraint("Tangent", 3, 2, 4, 1),
    Sketcher.Constraint("Tangent", 4, 2, 5, 1),
    Sketcher.Constraint("Tangent", 5, 2, 6, 1),
    Sketcher.Constraint("Tangent", 6, 2, 7, 1),
    Sketcher.Constraint("Tangent", 7, 2, 0, 1),
    Sketcher.Constraint("Vertical", 2),
    Sketcher.Constraint("Horizontal", 4),
    Sketcher.Constraint("Horizontal", 7),
    Sketcher.Constraint("Equal", 0, 1),
    Sketcher.Constraint("Equal", 1, 3),
    Sketcher.Constraint("Equal", 3, 6),
    Sketcher.Constraint("Horizontal", 1, 3, 5, 3),
    Sketcher.Constraint("Radius", 0, 1.0),
    Sketcher.Constraint("Radius", 5, 2.0),
    Sketcher.Constraint("DistanceX", 4, 1, 4, 2, 6.5),
    Sketcher.Constraint("DistanceX", -1, 1, 0, 3, 10.0),
    Sketcher.Constraint("DistanceY", 0, 2, -1, 1, 20.0),
    Sketcher.Constraint("DistanceY", 0, 3, -1, 1, 20.5),
])
pad6 = doc.addObject("PartDesign::Pad", "Pad005")
body.addObject(pad6)
pad6.Profile = sketch6
pad6.Length = 15

# Sketch on XY plane
sketch7 = doc.addObject("Sketcher::SketchObject", "Sketch006")
body.addObject(sketch7)
sketch7.AttachmentSupport = (doc.XY_Plane, [""])
sketch7.MapMode = "FlatFace"
sketch7.AttachmentOffset = App.Placement(App.Vector(0, 0, 5), App.Rotation())
sketch7.addGeometry([
    Part.ArcOfCircle(Part.Circle(App.Vector(17.5, 2.5, 0), App.Vector(0, 0, 1), 1), math.radians(-90), math.radians(0)),  # 0
    Part.LineSegment(App.Vector(18.5, 2.5, 0), App.Vector(18.5, 3.5, 0)),  # 1
    Part.ArcOfCircle(Part.Circle(App.Vector(17.5, 3.5, 0), App.Vector(0, 0, 1), 1), math.radians(0), math.radians(90)),  # 2
    Part.LineSegment(App.Vector(17.5, 4.5, 0), App.Vector(10, 4.5, 0)),  # 3
    Part.ArcOfCircle(Part.Circle(App.Vector(10, 3.5, 0), App.Vector(0, 0, 1), 1), math.radians(90), math.radians(180)),  # 4
    Part.LineSegment(App.Vector(9, 3.5, 0), App.Vector(9, 2.5, 0)),  # 5
    Part.ArcOfCircle(Part.Circle(App.Vector(10, 2.5, 0), App.Vector(0, 0, 1), 1), math.radians(180), math.radians(270)),  # 6
    Part.LineSegment(App.Vector(10, 1.5, 0), App.Vector(17.5, 1.5, 0)),  # 7
    Part.ArcOfCircle(Part.Circle(App.Vector(15.5, 11.5, 0), App.Vector(0, 0, 1), 1), math.radians(-90), math.radians(0)),  # 8
    Part.ArcOfCircle(Part.Circle(App.Vector(15.5, 11.5, 0), App.Vector(0, 0, 1), 1), math.radians(0), math.radians(90)),  # 9
    Part.LineSegment(App.Vector(15.5, 12.5, 0), App.Vector(10, 12.5, 0)),  # 10
    Part.ArcOfCircle(Part.Circle(App.Vector(10, 11.5, 0), App.Vector(0, 0, 1), 1), math.radians(90), math.radians(180)),  # 11
    Part.ArcOfCircle(Part.Circle(App.Vector(10, 11.5, 0), App.Vector(0, 0, 1), 1), math.radians(180), math.radians(270)),  # 12
    Part.LineSegment(App.Vector(10, 10.5, 0), App.Vector(15.5, 10.5, 0)),  # 13
], False)
sketch7.addConstraint([
    Sketcher.Constraint("Tangent", 0, 2, 1, 1),
    Sketcher.Constraint("Tangent", 1, 2, 2, 1),
    Sketcher.Constraint("Tangent", 2, 2, 3, 1),
    Sketcher.Constraint("Tangent", 3, 2, 4, 1),
    Sketcher.Constraint("Tangent", 4, 2, 5, 1),
    Sketcher.Constraint("Tangent", 5, 2, 6, 1),
    Sketcher.Constraint("Tangent", 6, 2, 7, 1),
    Sketcher.Constraint("Tangent", 7, 2, 0, 1),
    Sketcher.Constraint("Tangent", 8, 2, 9, 1),
    Sketcher.Constraint("Tangent", 9, 2, 10, 1),
    Sketcher.Constraint("Tangent", 10, 2, 11, 1),
    Sketcher.Constraint("Tangent", 11, 2, 12, 1),
    Sketcher.Constraint("Tangent", 12, 2, 13, 1),
    Sketcher.Constraint("Tangent", 13, 2, 8, 1),
    Sketcher.Constraint("Vertical", 1),
    Sketcher.Constraint("Horizontal", 3),
    Sketcher.Constraint("Vertical", 5),
    Sketcher.Constraint("Horizontal", 7),
    Sketcher.Constraint("Horizontal", 10),
    Sketcher.Constraint("Horizontal", 13),
    Sketcher.Constraint("Equal", 0, 2),
    Sketcher.Constraint("Equal", 2, 4),
    Sketcher.Constraint("Equal", 4, 6),
    Sketcher.Constraint("Equal", 6, 8),
    Sketcher.Constraint("Equal", 8, 9),
    Sketcher.Constraint("Equal", 9, 11),
    Sketcher.Constraint("Horizontal", 12, 3, 8, 2),
    Sketcher.Constraint("Horizontal", 8, 2, 11, 2),
    Sketcher.Constraint("Vertical", 6, 3, 11, 3),
    Sketcher.Constraint("Radius", 0, 1.0),
    Sketcher.Constraint("DistanceY", 1, 1, 1, 2, 1.0),
    Sketcher.Constraint("DistanceX", 3, 2, 3, 1, 7.5),
    Sketcher.Constraint("DistanceX", 10, 2, 10, 1, 5.5),
    Sketcher.Constraint("DistanceX", -1, 1, 4, 3, 10.0),
    Sketcher.Constraint("DistanceY", 2, 3, 8, 3, 8.0),
    Sketcher.Constraint("DistanceY", -1, 1, 0, 3, 2.5),
])
pad7 = doc.addObject("PartDesign::Pad", "Pad006")
body.addObject(pad7)
pad7.Profile = sketch7
pad7.Length = 15

# Sketch on XY plane
sketch8 = doc.addObject("Sketcher::SketchObject", "Sketch007")
body.addObject(sketch8)
sketch8.AttachmentSupport = (doc.XY_Plane, [""])
sketch8.MapMode = "FlatFace"
sketch8.AttachmentOffset = App.Placement(App.Vector(0, 0, 5), App.Rotation())
sketch8.addGeometry([
    Part.LineSegment(App.Vector(12.2, 10.5, 0), App.Vector(12.2, 4.5, 0)),
    Part.LineSegment(App.Vector(12.2, 4.5, 0), App.Vector(13.2, 4.5, 0)),
    Part.LineSegment(App.Vector(13.2, 4.5, 0), App.Vector(13.2, 10.5, 0)),
    Part.LineSegment(App.Vector(13.2, 10.5, 0), App.Vector(12.2, 10.5, 0)),
], False)
sketch8.addConstraint([
    Sketcher.Constraint("Coincident", 0, 2, 1, 1),
    Sketcher.Constraint("Coincident", 1, 2, 2, 1),
    Sketcher.Constraint("Coincident", 2, 2, 3, 1),
    Sketcher.Constraint("Coincident", 3, 2, 0, 1),
    Sketcher.Constraint("Vertical", 0),
    Sketcher.Constraint("Horizontal", 1),
    Sketcher.Constraint("Vertical", 2),
    Sketcher.Constraint("Horizontal", 3),
    Sketcher.Constraint("DistanceX", 1, 1, 1, 2, 1.0),
    Sketcher.Constraint("DistanceY", 0, 2, 0, 1, 6.0),
    Sketcher.Constraint("DistanceY", -1, 1, 0, 2, 4.5),
    Sketcher.Constraint("DistanceX", -1, 1, 0, 2, 12.25),
])
pad8 = doc.addObject("PartDesign::Pad", "Pad007")
body.addObject(pad8)
pad8.Profile = sketch8
pad8.Length = 5

doc.recompute()
